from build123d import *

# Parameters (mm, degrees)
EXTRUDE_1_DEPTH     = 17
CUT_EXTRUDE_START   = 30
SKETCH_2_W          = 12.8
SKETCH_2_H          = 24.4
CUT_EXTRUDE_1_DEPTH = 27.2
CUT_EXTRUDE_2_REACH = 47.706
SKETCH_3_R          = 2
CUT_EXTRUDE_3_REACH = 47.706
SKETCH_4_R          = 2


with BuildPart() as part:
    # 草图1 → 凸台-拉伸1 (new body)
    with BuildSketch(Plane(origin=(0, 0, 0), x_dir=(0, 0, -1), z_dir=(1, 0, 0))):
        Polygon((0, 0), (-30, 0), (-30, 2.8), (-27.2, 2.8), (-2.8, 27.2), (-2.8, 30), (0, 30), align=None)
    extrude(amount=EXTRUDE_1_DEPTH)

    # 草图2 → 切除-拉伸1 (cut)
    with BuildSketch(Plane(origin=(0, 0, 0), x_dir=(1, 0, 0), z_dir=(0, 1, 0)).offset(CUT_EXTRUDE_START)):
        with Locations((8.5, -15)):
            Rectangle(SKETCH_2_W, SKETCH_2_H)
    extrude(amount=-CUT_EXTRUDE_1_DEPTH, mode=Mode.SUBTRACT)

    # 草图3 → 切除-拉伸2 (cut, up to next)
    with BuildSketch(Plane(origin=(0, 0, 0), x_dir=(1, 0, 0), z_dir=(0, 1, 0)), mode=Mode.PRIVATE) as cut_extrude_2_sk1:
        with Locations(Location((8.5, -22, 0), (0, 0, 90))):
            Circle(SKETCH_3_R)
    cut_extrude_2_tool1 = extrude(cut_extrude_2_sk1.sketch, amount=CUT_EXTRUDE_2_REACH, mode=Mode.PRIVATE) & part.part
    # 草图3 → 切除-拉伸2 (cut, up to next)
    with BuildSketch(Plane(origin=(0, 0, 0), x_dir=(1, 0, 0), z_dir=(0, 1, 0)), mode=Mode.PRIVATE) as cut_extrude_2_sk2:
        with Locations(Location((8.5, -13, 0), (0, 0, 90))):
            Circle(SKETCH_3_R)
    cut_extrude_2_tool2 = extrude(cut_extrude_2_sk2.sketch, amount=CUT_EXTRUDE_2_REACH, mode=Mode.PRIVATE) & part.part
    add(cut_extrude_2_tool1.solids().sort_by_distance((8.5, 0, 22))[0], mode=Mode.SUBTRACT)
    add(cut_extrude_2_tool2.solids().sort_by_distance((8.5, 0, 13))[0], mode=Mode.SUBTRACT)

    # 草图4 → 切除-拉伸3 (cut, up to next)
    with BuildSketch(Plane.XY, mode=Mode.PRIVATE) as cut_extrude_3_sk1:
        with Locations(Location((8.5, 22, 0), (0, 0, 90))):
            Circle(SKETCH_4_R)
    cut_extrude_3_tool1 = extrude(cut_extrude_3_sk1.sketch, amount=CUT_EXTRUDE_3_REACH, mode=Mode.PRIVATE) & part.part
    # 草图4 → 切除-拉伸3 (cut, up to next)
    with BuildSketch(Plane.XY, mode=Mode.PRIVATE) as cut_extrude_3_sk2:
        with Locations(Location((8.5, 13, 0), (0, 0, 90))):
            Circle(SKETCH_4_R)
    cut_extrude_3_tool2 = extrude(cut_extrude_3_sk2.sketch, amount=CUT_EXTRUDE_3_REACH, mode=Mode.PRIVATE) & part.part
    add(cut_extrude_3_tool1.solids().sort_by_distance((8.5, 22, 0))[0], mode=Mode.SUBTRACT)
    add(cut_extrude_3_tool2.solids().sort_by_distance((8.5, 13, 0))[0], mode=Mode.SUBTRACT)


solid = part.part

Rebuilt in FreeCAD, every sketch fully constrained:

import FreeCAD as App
import Part
import Sketcher
from FreeCAD import Vector


def add_polygon(sketch, points):
    """Adds a closed chain of lines whose ends are joined by coincident constraints."""
    first, n = sketch.GeometryCount, len(points)
    for a, b in zip(points, points[1:] + points[:1]):
        sketch.addGeometry(Part.LineSegment(App.Vector(*a, 0), App.Vector(*b, 0)), False)
    for i in range(n):
        sketch.addConstraint(Sketcher.Constraint("Coincident", first + i, 2, first + (i + 1) % n, 1))

doc = App.newDocument("Part")
body = doc.addObject("PartDesign::Body", "Body")

# Sketch on YZ plane
sketch1 = doc.addObject("Sketcher::SketchObject", "Sketch")
body.addObject(sketch1)
sketch1.AttachmentSupport = (doc.YZ_Plane, [""])
sketch1.MapMode = "FlatFace"
add_polygon(sketch1, [(0, 30), (0, 0), (30, 0), (30, 2.8), (27.2, 2.8), (2.8, 27.2), (2.8, 30)])  # lines 0-6
sketch1.addConstraint([
    Sketcher.Constraint("Vertical", 0),
    Sketcher.Constraint("Horizontal", 1),
    Sketcher.Constraint("Vertical", 2),
    Sketcher.Constraint("Horizontal", 3),
    Sketcher.Constraint("Vertical", 5),
    Sketcher.Constraint("Horizontal", 6),
    Sketcher.Constraint("Coincident", 0, 2, -1, 1),
    Sketcher.Constraint("Equal", 3, 6),
    Sketcher.Constraint("Equal", 1, 0),
    Sketcher.Constraint("Equal", 6, 2),
    Sketcher.Constraint("Equal", 2, 5),
    Sketcher.Constraint("DistanceX", 1, 1, 1, 2, 30.0),
    Sketcher.Constraint("DistanceX", 3, 2, 3, 1, 2.8),
])
pad1 = doc.addObject("PartDesign::Pad", "Pad")
body.addObject(pad1)
pad1.Profile = sketch1
pad1.Length = 17

# Sketch on XZ plane
sketch2 = doc.addObject("Sketcher::SketchObject", "Sketch001")
body.addObject(sketch2)
sketch2.AttachmentSupport = (doc.XZ_Plane, [""])
sketch2.MapMode = "FlatFace"
sketch2.AttachmentOffset = App.Placement(Vector(0, 0, -30), App.Rotation())
add_polygon(sketch2, [(2.1, 2.8), (2.1, 27.2), (14.9, 27.2), (14.9, 2.8)])  # lines 0-3
sketch2.addConstraint([
    Sketcher.Constraint("Vertical", 0),
    Sketcher.Constraint("Horizontal", 1),
    Sketcher.Constraint("Vertical", 2),
    Sketcher.Constraint("Horizontal", 3),
    Sketcher.Constraint("DistanceX", 1, 1, 1, 2, 12.8),
    Sketcher.Constraint("DistanceY", 0, 1, 0, 2, 24.4),
    Sketcher.Constraint("DistanceX", -1, 1, 0, 2, 2.1),
    Sketcher.Constraint("DistanceY", -1, 1, 0, 2, 27.2),
])
pocket1 = doc.addObject("PartDesign::Pocket", "Pocket")
body.addObject(pocket1)
pocket1.Profile = sketch2
pocket1.Length = 27.2
pocket1.Reversed = True

# Sketch on XZ plane
sketch3 = doc.addObject("Sketcher::SketchObject", "Sketch002")
body.addObject(sketch3)
sketch3.AttachmentSupport = (doc.XZ_Plane, [""])
sketch3.MapMode = "FlatFace"
sketch3.addGeometry(Part.Circle(Vector(8.5, 22, 0), Vector(0, 0, 1), 2), False)
sketch3.addConstraint([
    Sketcher.Constraint("Diameter", 0, 4.0),
    Sketcher.Constraint("DistanceY", -1, 1, 0, 3, 22.0),
    Sketcher.Constraint("DistanceX", -1, 1, 0, 3, 8.5),
])
pocket2 = doc.addObject("PartDesign::Pocket", "Pocket001")
body.addObject(pocket2)
pocket2.Profile = sketch3
pocket2.Type = "UpToFirst"

# Sketch on XZ plane
sketch4 = doc.addObject("Sketcher::SketchObject", "Sketch003")
body.addObject(sketch4)
sketch4.AttachmentSupport = (doc.XZ_Plane, [""])
sketch4.MapMode = "FlatFace"
sketch4.addGeometry(Part.Circle(Vector(8.5, 13, 0), Vector(0, 0, 1), 2), False)
sketch4.addConstraint([
    Sketcher.Constraint("Diameter", 0, 4.0),
    Sketcher.Constraint("DistanceY", -1, 1, 0, 3, 13.0),
    Sketcher.Constraint("DistanceX", -1, 1, 0, 3, 8.5),
])
pocket3 = doc.addObject("PartDesign::Pocket", "Pocket002")
body.addObject(pocket3)
pocket3.Profile = sketch4
pocket3.Type = "UpToFirst"

# Sketch on XY plane
sketch5 = doc.addObject("Sketcher::SketchObject", "Sketch004")
body.addObject(sketch5)
sketch5.AttachmentSupport = (doc.XY_Plane, [""])
sketch5.MapMode = "FlatFace"
sketch5.addGeometry(Part.Circle(Vector(8.5, 22, 0), Vector(0, 0, 1), 2), False)
sketch5.addConstraint([
    Sketcher.Constraint("Diameter", 0, 4.0),
    Sketcher.Constraint("DistanceY", -1, 1, 0, 3, 22.0),
    Sketcher.Constraint("DistanceX", -1, 1, 0, 3, 8.5),
])
pocket4 = doc.addObject("PartDesign::Pocket", "Pocket003")
body.addObject(pocket4)
pocket4.Profile = sketch5
pocket4.Type = "UpToFirst"
pocket4.Reversed = True

# Sketch on XY plane
sketch6 = doc.addObject("Sketcher::SketchObject", "Sketch005")
body.addObject(sketch6)
sketch6.AttachmentSupport = (doc.XY_Plane, [""])
sketch6.MapMode = "FlatFace"
sketch6.addGeometry(Part.Circle(Vector(8.5, 13, 0), Vector(0, 0, 1), 2), False)
sketch6.addConstraint([
    Sketcher.Constraint("Diameter", 0, 4.0),
    Sketcher.Constraint("DistanceY", -1, 1, 0, 3, 13.0),
    Sketcher.Constraint("DistanceX", -1, 1, 0, 3, 8.5),
])
pocket5 = doc.addObject("PartDesign::Pocket", "Pocket004")
body.addObject(pocket5)
pocket5.Profile = sketch6
pocket5.Type = "UpToFirst"
pocket5.Reversed = True

doc.recompute()
